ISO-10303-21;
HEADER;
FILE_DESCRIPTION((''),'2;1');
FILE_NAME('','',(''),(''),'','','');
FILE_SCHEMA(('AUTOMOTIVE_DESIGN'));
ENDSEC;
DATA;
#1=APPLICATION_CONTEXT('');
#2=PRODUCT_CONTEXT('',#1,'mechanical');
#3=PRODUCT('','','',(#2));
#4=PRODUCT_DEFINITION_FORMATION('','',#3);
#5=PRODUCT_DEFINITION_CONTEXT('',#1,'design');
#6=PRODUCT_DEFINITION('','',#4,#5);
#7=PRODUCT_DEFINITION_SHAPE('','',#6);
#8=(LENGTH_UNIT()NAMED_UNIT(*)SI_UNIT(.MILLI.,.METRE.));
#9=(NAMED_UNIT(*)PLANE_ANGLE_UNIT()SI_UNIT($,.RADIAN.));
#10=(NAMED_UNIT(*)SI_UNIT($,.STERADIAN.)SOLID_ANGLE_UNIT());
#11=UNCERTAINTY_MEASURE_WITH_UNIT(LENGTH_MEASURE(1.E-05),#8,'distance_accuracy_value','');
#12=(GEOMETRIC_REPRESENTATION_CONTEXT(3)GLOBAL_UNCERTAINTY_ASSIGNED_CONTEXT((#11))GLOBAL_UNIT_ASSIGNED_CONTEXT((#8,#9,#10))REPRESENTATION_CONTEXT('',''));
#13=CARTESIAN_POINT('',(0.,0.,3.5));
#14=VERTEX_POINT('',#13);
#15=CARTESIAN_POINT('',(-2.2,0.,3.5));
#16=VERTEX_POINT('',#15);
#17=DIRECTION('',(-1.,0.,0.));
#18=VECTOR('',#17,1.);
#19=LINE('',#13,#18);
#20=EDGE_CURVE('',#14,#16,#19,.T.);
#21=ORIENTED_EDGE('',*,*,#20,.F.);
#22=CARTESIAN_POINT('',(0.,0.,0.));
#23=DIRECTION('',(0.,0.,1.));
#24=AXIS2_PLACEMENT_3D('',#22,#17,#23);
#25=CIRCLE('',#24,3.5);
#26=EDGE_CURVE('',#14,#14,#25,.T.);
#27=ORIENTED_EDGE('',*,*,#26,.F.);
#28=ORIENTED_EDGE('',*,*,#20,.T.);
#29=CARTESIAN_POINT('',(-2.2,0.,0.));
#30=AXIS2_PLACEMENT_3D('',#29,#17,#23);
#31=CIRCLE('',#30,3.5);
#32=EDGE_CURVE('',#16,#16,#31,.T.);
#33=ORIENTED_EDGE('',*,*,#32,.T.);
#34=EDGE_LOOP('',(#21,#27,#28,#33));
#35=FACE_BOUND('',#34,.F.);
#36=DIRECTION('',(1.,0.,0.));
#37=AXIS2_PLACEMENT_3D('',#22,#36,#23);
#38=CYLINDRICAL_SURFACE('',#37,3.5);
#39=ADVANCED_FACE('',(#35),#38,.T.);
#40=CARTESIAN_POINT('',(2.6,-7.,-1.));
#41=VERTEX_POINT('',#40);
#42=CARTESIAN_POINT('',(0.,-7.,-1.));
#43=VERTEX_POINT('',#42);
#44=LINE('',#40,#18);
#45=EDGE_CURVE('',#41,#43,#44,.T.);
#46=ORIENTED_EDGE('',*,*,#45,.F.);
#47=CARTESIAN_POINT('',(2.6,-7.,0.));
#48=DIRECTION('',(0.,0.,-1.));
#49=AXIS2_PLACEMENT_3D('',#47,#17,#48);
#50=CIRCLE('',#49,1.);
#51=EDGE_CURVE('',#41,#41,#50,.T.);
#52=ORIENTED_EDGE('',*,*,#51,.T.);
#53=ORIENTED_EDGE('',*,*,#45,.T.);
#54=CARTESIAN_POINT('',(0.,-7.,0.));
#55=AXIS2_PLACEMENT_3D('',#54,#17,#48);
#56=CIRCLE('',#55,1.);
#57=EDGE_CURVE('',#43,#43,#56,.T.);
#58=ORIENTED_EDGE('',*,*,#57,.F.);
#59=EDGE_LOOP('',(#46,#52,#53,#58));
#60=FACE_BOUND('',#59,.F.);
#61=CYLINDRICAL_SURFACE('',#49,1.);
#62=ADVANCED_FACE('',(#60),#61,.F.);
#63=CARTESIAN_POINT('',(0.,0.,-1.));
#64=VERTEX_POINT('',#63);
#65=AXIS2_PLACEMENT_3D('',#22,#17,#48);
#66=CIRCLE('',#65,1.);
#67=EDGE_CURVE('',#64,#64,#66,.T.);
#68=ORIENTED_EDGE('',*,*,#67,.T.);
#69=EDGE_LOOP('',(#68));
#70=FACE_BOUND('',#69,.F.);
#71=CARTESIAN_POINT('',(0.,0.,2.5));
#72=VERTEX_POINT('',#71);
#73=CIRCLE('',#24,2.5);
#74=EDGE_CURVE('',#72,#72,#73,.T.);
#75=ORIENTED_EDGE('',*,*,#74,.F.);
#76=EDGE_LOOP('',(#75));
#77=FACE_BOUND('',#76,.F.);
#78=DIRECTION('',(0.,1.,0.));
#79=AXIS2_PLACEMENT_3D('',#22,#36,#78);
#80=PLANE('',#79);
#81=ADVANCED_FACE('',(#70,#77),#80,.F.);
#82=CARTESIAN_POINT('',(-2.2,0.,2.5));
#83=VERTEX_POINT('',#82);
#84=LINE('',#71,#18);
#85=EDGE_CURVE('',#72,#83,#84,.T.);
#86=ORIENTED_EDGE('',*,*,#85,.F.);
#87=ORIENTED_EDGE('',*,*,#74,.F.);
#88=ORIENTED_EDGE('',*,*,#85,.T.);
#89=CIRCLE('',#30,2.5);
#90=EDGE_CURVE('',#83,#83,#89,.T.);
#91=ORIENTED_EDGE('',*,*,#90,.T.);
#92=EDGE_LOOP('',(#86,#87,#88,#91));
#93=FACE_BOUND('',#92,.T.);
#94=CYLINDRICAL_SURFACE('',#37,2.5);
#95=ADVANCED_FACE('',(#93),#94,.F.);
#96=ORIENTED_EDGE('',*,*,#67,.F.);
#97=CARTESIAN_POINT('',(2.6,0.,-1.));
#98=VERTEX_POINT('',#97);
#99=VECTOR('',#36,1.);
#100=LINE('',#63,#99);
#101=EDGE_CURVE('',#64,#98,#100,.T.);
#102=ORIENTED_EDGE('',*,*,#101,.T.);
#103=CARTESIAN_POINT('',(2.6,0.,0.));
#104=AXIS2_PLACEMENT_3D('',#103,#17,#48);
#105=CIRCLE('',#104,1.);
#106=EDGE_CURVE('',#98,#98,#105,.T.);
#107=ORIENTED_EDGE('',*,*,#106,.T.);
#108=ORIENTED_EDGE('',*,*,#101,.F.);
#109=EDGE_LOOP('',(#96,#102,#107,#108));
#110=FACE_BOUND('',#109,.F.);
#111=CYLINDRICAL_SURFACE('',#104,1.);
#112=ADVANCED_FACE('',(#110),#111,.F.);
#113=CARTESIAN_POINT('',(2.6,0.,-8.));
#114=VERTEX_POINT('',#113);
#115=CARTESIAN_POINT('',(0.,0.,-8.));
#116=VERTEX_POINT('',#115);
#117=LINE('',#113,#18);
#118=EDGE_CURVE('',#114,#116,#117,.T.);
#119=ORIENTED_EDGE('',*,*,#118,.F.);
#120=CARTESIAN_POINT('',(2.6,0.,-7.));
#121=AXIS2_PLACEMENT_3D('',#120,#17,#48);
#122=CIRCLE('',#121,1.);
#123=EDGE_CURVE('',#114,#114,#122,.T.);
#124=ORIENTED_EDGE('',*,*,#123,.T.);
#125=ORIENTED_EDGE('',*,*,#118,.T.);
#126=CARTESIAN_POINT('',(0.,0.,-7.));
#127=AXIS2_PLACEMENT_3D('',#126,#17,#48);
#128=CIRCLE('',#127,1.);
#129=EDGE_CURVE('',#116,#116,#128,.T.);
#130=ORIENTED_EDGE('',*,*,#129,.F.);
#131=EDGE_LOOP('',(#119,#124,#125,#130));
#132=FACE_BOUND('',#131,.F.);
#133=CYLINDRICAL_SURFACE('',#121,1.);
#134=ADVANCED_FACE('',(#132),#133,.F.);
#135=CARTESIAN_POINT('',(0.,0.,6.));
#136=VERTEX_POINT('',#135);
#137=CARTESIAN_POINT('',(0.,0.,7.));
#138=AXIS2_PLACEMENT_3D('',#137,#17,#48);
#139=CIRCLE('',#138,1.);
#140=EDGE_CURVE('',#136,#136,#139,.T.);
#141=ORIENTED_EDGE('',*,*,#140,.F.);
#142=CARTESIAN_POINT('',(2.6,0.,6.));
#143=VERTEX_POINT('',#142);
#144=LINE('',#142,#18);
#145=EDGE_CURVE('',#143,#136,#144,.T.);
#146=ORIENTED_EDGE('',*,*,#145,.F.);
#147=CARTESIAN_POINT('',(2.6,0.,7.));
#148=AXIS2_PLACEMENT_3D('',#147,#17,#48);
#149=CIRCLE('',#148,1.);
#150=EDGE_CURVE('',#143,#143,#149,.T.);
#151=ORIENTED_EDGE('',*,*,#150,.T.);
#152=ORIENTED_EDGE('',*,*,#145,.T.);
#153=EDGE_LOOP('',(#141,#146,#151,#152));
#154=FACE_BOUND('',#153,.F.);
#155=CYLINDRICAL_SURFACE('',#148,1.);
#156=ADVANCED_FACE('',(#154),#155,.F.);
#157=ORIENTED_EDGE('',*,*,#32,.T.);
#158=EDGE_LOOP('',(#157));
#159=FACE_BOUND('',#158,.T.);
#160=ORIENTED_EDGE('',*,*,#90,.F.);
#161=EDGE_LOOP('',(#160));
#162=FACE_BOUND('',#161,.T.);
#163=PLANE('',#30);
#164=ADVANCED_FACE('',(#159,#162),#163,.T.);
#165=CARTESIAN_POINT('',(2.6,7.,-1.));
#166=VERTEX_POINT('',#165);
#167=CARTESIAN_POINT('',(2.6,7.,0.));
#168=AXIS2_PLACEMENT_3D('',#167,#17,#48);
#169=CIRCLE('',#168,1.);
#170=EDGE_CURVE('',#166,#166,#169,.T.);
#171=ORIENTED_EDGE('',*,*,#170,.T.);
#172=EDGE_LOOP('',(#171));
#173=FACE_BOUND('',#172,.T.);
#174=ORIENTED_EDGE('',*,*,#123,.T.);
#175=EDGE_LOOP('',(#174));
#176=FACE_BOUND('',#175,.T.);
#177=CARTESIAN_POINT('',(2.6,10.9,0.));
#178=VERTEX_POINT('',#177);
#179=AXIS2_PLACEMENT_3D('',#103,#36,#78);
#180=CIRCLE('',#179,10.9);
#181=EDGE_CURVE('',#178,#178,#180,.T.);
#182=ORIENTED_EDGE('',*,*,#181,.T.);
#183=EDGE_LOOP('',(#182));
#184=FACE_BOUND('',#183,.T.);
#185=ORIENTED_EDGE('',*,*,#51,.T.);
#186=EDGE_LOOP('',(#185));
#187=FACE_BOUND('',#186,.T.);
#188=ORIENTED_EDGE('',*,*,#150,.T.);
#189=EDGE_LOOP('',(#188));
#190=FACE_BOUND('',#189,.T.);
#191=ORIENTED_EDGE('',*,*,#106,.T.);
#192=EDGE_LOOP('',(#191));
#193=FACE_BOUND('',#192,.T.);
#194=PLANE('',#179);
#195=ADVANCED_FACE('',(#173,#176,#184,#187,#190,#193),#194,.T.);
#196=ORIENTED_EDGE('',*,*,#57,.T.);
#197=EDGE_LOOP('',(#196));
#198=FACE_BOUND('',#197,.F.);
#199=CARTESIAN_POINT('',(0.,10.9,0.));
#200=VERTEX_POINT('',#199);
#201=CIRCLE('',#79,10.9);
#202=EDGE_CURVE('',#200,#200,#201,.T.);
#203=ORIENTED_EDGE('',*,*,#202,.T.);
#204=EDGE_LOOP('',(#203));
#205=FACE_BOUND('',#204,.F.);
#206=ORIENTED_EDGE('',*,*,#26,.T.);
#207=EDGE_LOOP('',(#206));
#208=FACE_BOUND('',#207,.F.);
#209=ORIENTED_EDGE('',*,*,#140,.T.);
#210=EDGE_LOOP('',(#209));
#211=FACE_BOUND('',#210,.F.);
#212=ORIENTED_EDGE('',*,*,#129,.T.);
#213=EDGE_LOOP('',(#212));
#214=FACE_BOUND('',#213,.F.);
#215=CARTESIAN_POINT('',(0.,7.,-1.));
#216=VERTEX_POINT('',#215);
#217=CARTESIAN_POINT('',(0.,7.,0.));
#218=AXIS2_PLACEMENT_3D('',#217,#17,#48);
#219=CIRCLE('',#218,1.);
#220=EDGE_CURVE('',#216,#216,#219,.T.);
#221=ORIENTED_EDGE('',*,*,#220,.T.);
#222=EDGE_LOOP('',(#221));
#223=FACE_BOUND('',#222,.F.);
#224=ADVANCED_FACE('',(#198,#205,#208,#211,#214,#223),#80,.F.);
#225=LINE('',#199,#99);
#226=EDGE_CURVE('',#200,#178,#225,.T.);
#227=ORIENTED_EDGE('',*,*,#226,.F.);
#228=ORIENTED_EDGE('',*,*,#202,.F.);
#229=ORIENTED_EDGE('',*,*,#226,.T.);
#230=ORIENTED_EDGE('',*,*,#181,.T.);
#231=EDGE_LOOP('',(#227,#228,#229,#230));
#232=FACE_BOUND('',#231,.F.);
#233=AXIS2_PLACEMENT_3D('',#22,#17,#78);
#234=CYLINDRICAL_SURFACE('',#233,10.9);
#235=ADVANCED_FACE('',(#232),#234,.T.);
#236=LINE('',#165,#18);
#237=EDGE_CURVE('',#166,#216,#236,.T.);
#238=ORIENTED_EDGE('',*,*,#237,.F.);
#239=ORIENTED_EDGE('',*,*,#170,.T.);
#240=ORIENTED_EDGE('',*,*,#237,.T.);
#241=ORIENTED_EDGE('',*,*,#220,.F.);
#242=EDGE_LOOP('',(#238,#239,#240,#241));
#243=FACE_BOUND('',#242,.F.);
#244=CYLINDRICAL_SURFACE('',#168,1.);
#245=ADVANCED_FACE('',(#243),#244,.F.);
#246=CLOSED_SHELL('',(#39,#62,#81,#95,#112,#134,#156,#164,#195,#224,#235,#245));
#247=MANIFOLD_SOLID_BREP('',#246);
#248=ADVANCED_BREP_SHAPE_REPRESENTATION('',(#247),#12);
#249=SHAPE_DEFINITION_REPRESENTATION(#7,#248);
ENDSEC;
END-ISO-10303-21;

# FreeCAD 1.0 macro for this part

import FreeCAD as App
import Part
import Sketcher

doc = App.newDocument("Part")
body = doc.addObject("PartDesign::Body", "Body")

sketch1 = doc.addObject("Sketcher::SketchObject", "Sketch")
body.addObject(sketch1)
sketch1.AttachmentSupport = (doc.YZ_Plane, [""])
sketch1.MapMode = "FlatFace"
sketch1.addGeometry(Part.Circle(App.Vector(0, 0, 0), App.Vector(0, 0, 1), 11), False)
sketch1.addConstraint([
    Sketcher.Constraint("Coincident", 0, 3, -1, 1),
    Sketcher.Constraint("Diameter", 0, 21.8),
])
pad1 = doc.addObject("PartDesign::Pad", "Pad")
body.addObject(pad1)
pad1.Profile = sketch1
pad1.Length = 2.6

sketch2 = doc.addObject("Sketcher::SketchObject", "Sketch001")
body.addObject(sketch2)
sketch2.AttachmentSupport = (doc.YZ_Plane, [""])
sketch2.MapMode = "FlatFace"
sketch2.addGeometry([
    Part.Circle(App.Vector(0, 0, 0), App.Vector(0, 0, 1), 3.5),
    Part.Circle(App.Vector(0, 0, 0), App.Vector(0, 0, 1), 2.5),
], False)
sketch2.addConstraint([
    Sketcher.Constraint("Coincident", 0, 3, -1, 1),
    Sketcher.Constraint("Coincident", 1, 3, -1, 1),
    Sketcher.Constraint("Diameter", 0, 7.0),
    Sketcher.Constraint("Diameter", 1, 5.0),
])
pad2 = doc.addObject("PartDesign::Pad", "Pad001")
body.addObject(pad2)
pad2.Profile = sketch2
pad2.Length = 2.2
pad2.Reversed = True

sketch3 = doc.addObject("Sketcher::SketchObject", "Sketch002")
body.addObject(sketch3)
sketch3.AttachmentSupport = (doc.YZ_Plane, [""])
sketch3.MapMode = "FlatFace"
sketch3.AttachmentOffset = App.Placement(App.Vector(0, 0, 2.6), App.Rotation())
sketch3.addGeometry(Part.Circle(App.Vector(0, 0, 0), App.Vector(0, 0, 1), 1), False)
sketch3.addConstraint([
    Sketcher.Constraint("Coincident", 0, 3, -1, 1),
    Sketcher.Constraint("Diameter", 0, 2.0),
])
doc.recompute()
hole = doc.addObject("PartDesign::Hole", "Hole")
body.addObject(hole)
hole.Profile = sketch3
hole.ThreadType = "None"
hole.Diameter = 2
hole.DepthType = "Dimension"
hole.Depth = 2
hole.DrillPoint = "Flat"

sketch4 = doc.addObject("Sketcher::SketchObject", "Sketch003")
body.addObject(sketch4)
sketch4.AttachmentSupport = (doc.YZ_Plane, [""])
sketch4.MapMode = "FlatFace"
sketch4.AttachmentOffset = App.Placement(App.Vector(0, 0, 2.6), App.Rotation())
sketch4.addGeometry([
    Part.Circle(App.Vector(-7, 0, 0), App.Vector(0, 0, 1), 1),
    Part.Circle(App.Vector(0, 7, 0), App.Vector(0, 0, 1), 1),
    Part.Circle(App.Vector(7, 0, 0), App.Vector(0, 0, 1), 1),
    Part.Circle(App.Vector(0, -7, 0), App.Vector(0, 0, 1), 1),
    Part.Circle(App.Vector(0, 0, 0), App.Vector(0, 0, 1), 1),
], False)
sketch4.addConstraint([
    Sketcher.Constraint("Coincident", 4, 3, -1, 1),
    Sketcher.Constraint("Equal", 0, 1),
    Sketcher.Constraint("Equal", 1, 2),
    Sketcher.Constraint("Equal", 2, 3),
    Sketcher.Constraint("Equal", 3, 4),
    Sketcher.Constraint("Symmetric", 0, 3, 2, 3, -1, 1),
    Sketcher.Constraint("Symmetric", 1, 3, 3, 3, -1, 1),
    Sketcher.Constraint("PointOnObject", 0, 3, -1),
    Sketcher.Constraint("PointOnObject", 1, 3, -2),
    Sketcher.Constraint("Diameter", 0, 2.0),
    Sketcher.Constraint("DistanceX", 0, 3, -1, 1, 7.0),
    Sketcher.Constraint("DistanceY", -1, 1, 1, 3, 7.0),
])
doc.recompute()
hole2 = doc.addObject("PartDesign::Hole", "Hole001")
body.addObject(hole2)
hole2.Profile = sketch4
hole2.ThreadType = "None"
hole2.Diameter = 2
hole2.DepthType = "Dimension"
hole2.Depth = 3
hole2.DrillPoint = "Flat"

doc.recompute()
